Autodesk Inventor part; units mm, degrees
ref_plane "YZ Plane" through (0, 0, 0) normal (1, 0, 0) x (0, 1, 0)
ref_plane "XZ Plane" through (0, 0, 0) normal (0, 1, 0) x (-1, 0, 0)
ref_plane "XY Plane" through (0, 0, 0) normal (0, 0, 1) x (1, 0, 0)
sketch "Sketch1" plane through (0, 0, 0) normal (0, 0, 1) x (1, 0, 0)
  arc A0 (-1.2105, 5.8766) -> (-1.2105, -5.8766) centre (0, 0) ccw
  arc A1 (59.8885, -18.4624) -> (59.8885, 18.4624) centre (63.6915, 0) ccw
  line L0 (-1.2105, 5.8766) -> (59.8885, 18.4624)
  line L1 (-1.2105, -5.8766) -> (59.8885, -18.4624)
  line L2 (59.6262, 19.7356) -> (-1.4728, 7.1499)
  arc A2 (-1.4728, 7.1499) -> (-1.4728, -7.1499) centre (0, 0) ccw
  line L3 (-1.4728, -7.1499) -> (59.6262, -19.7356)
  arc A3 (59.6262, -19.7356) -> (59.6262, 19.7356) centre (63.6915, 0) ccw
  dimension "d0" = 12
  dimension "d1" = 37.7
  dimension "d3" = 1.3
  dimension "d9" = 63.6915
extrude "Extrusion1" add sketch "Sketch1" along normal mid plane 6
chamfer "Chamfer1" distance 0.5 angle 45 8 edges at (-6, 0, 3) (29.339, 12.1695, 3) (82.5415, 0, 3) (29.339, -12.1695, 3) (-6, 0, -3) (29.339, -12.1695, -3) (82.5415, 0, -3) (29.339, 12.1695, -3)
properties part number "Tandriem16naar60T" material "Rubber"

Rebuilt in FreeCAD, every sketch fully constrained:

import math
import FreeCAD as App
import Part
import Sketcher

V = App.Vector


def edges_at(feature, points):
    """Names of the edges that pass closest to the given points."""
    edges = feature.Shape.Edges
    near = lambda p: min(range(len(edges)), key=lambda i: edges[i].distToShape(Part.Vertex(*p))[0])
    return sorted({f"Edge{near(p) + 1}" for p in points})

doc = App.newDocument("Part")
body = doc.addObject("PartDesign::Body", "Body")

# Sketch on XY plane
sketch1 = body.newObject("Sketcher::SketchObject", "Sketch")
sketch1.AttachmentSupport = (doc.getObject("XY_Plane"), [""])
sketch1.MapMode = "FlatFace"
sketch1.addGeometry([
    Part.ArcOfCircle(Part.Circle(V(64, 0, 0), V(0, 0, 1), 20), math.radians(-102), math.radians(102)),  # 0
    Part.LineSegment(V(60, 20, 0), V(-1, 7, 0)),  # 1
    Part.ArcOfCircle(Part.Circle(V(0, 0, 0), V(0, 0, 1), 7), math.radians(102), math.radians(258)),  # 2
    Part.LineSegment(V(-1, -7, 0), V(60, -20, 0)),  # 3
    Part.ArcOfCircle(Part.Circle(V(0, 0, 0), V(0, 0, 1), 6), math.radians(102), math.radians(258)),  # 4
    Part.LineSegment(V(-1, 6, 0), V(60, 18, 0)),  # 5
    Part.ArcOfCircle(Part.Circle(V(64, 0, 0), V(0, 0, 1), 19), math.radians(-102), math.radians(102)),  # 6
    Part.LineSegment(V(60, -18, 0), V(-1, -6, 0)),  # 7
], False)
sketch1.addConstraint([
    Sketcher.Constraint("Tangent", 0, 2, 1, 1),
    Sketcher.Constraint("Tangent", 1, 2, 2, 1),
    Sketcher.Constraint("Tangent", 2, 2, 3, 1),
    Sketcher.Constraint("Tangent", 3, 2, 0, 1),
    Sketcher.Constraint("Tangent", 4, 1, 5, 1),
    Sketcher.Constraint("Tangent", 5, 2, 6, 2),
    Sketcher.Constraint("Tangent", 6, 1, 7, 1),
    Sketcher.Constraint("Tangent", 7, 2, 4, 2),
    Sketcher.Constraint("Coincident", 2, 3, -1, 1),
    Sketcher.Constraint("Coincident", 4, 3, -1, 1),
    Sketcher.Constraint("Coincident", 6, 3, 0, 3),
    Sketcher.Constraint("PointOnObject", 0, 3, -1),
    Sketcher.Constraint("Parallel", 1, 5),
    Sketcher.Constraint("Radius", 4, 6.0),
    Sketcher.Constraint("Radius", 6, 18.85),
    Sketcher.Constraint("Radius", 2, 7.3),
    Sketcher.Constraint("DistanceX", -1, 1, 0, 3, 63.6915),
])
pad1 = body.newObject("PartDesign::Pad", "Pad")
pad1.Profile = sketch1
pad1.Length = 6
pad1.Midplane = True
doc.recompute()

chamfer = body.newObject("PartDesign::Chamfer", "Chamfer")
chamfer.Base = (pad1, edges_at(pad1, [
    (-6, 0, 3),
    (29.339, 12.169, 3),
    (82.541, 0, 3),
    (29.339, -12.169, 3),
    (-6, 0, -3),
    (29.339, -12.169, -3),
    (82.541, 0, -3),
    (29.339, 12.169, -3),
]))
chamfer.Size = 0.5

doc.recompute()
